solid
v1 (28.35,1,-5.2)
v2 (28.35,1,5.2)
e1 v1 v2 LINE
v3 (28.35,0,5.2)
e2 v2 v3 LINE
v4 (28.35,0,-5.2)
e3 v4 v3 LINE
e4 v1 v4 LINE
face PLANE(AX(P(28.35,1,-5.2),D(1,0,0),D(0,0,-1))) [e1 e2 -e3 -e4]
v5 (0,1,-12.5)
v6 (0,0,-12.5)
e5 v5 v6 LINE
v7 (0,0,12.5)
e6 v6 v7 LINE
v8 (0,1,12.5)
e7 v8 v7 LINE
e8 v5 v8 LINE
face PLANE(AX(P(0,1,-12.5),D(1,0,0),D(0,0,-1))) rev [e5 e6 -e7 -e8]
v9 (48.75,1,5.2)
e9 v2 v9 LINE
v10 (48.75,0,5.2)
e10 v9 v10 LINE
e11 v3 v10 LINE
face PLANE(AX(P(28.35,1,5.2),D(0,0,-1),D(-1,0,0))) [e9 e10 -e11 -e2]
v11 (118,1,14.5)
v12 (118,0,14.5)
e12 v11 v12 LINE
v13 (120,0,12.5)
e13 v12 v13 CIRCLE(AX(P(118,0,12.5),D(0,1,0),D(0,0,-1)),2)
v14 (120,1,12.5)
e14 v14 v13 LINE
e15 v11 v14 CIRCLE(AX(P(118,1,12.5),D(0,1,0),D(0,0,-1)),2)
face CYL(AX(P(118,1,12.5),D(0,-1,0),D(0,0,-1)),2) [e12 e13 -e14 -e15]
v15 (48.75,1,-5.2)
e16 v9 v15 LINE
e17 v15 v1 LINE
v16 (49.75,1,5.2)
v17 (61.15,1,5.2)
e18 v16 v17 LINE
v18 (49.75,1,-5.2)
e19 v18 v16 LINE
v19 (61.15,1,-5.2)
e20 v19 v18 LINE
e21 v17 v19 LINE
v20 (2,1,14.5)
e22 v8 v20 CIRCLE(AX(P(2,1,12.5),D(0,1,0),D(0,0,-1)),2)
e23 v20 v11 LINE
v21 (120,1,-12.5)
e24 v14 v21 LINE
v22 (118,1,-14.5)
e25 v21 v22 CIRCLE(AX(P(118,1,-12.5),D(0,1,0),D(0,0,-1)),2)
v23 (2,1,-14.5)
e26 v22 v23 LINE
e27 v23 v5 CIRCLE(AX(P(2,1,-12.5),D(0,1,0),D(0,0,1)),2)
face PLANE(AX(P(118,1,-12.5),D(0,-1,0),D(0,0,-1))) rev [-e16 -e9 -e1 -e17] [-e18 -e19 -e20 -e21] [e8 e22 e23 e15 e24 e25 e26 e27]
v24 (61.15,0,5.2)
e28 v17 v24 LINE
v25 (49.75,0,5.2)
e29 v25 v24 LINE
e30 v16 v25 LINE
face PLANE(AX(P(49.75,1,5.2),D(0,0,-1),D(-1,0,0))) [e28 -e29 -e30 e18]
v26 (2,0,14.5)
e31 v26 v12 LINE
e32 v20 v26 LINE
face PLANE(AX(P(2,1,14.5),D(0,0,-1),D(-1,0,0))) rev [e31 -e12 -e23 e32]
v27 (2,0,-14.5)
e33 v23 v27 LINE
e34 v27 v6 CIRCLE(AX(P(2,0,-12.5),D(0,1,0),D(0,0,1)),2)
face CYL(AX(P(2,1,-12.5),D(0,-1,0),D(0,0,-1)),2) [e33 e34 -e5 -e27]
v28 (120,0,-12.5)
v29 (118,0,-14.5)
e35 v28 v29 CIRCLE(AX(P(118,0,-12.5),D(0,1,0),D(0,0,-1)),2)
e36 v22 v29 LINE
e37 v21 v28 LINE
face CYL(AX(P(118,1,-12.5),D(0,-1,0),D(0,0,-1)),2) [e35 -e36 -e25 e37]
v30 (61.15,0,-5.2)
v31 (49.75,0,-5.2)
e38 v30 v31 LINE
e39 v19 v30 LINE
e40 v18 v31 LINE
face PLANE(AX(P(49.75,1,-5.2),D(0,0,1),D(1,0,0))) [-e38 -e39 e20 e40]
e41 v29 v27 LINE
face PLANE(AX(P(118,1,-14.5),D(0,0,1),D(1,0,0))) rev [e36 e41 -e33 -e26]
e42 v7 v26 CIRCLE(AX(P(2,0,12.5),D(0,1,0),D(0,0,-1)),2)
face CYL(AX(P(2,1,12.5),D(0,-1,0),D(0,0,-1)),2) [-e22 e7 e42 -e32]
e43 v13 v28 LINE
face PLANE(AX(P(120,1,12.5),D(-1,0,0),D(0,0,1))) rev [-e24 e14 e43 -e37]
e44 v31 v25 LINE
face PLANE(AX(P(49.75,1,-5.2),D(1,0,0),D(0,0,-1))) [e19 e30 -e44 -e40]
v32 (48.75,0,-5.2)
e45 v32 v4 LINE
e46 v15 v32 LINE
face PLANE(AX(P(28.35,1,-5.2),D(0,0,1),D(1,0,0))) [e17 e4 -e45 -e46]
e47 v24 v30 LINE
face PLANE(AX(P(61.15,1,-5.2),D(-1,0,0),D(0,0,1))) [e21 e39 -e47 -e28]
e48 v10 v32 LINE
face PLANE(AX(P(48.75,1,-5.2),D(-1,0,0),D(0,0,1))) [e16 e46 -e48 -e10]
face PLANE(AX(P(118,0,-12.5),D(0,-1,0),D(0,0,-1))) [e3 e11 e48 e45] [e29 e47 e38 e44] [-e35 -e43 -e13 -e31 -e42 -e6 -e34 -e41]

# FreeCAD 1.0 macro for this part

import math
import FreeCAD as App
import Part
import Sketcher

V = App.Vector
Q = App.Units.Quantity


def add_polygon(sketch, points):
    """Adds a closed chain of lines whose ends are joined by coincident constraints."""
    first, n = sketch.GeometryCount, len(points)
    for a, b in zip(points, points[1:] + points[:1]):
        sketch.addGeometry(Part.LineSegment(App.Vector(*a, 0), App.Vector(*b, 0)), False)
    for i in range(n):
        sketch.addConstraint(Sketcher.Constraint("Coincident", first + i, 2, first + (i + 1) % n, 1))

doc = App.newDocument("Part")
body = doc.addObject("PartDesign::Body", "Body")

sketch1 = body.newObject("Sketcher::SketchObject", "Sketch")
sketch1.AttachmentSupport = (doc.getObject("XZ_Plane"), [""])
sketch1.MapMode = "FlatFace"
sketch1.addGeometry(Part.LineSegment(V(0, -12.5, 0), V(0, 12.5, 0)), False)
sketch1.addGeometry(Part.ArcOfCircle(Part.Circle(V(2, 12.5, 0), V(0, 0, 1), 2), math.radians(90), math.radians(180)), False)
sketch1.addGeometry(Part.LineSegment(V(2, 14.5, 0), V(118, 14.5, 0)), False)
sketch1.addGeometry(Part.ArcOfCircle(Part.Circle(V(118, 12.5, 0), V(0, 0, 1), 2), math.radians(0), math.radians(90)), False)
sketch1.addGeometry(Part.LineSegment(V(120, 12.5, 0), V(120, -12.5, 0)), False)
sketch1.addGeometry(Part.ArcOfCircle(Part.Circle(V(118, -12.5, 0), V(0, 0, 1), 2), math.radians(-90), math.radians(0)), False)
sketch1.addGeometry(Part.LineSegment(V(118, -14.5, 0), V(2, -14.5, 0)), False)
sketch1.addGeometry(Part.ArcOfCircle(Part.Circle(V(2, -12.5, 0), V(0, 0, 1), 2), math.radians(-180), math.radians(-90)), False)
add_polygon(sketch1, [(48.75, 5.2), (28.35, 5.2), (28.35, -5.2), (48.75, -5.2)])
add_polygon(sketch1, [(61.15, 5.2), (49.75, 5.2), (49.75, -5.2), (61.15, -5.2)])
sketch1.addConstraint(Sketcher.Constraint("Tangent", 0, 2, 1, 2))
sketch1.addConstraint(Sketcher.Constraint("Tangent", 1, 1, 2, 1))
sketch1.addConstraint(Sketcher.Constraint("Tangent", 2, 2, 3, 2))
sketch1.addConstraint(Sketcher.Constraint("Tangent", 3, 1, 4, 1))
sketch1.addConstraint(Sketcher.Constraint("Tangent", 4, 2, 5, 2))
sketch1.addConstraint(Sketcher.Constraint("Tangent", 5, 1, 6, 1))
sketch1.addConstraint(Sketcher.Constraint("Tangent", 6, 2, 7, 2))
sketch1.addConstraint(Sketcher.Constraint("Tangent", 7, 1, 0, 1))
sketch1.addConstraint(Sketcher.Constraint("Vertical", 0))
sketch1.addConstraint(Sketcher.Constraint("Horizontal", 2))
sketch1.addConstraint(Sketcher.Constraint("Vertical", 4))
sketch1.addConstraint(Sketcher.Constraint("Horizontal", 6))
sketch1.addConstraint(Sketcher.Constraint("Horizontal", 8))
sketch1.addConstraint(Sketcher.Constraint("Vertical", 9))
sketch1.addConstraint(Sketcher.Constraint("Horizontal", 10))
sketch1.addConstraint(Sketcher.Constraint("Vertical", 11))
sketch1.addConstraint(Sketcher.Constraint("Horizontal", 12))
sketch1.addConstraint(Sketcher.Constraint("Vertical", 13))
sketch1.addConstraint(Sketcher.Constraint("Horizontal", 14))
sketch1.addConstraint(Sketcher.Constraint("Vertical", 15))
sketch1.addConstraint(Sketcher.Constraint("Equal", 1, 3))
sketch1.addConstraint(Sketcher.Constraint("Equal", 3, 5))
sketch1.addConstraint(Sketcher.Constraint("Equal", 5, 7))
sketch1.addConstraint(Sketcher.Constraint("Symmetric", 0, 2, 7, 1, -1, 1))
sketch1.addConstraint(Sketcher.Constraint("Horizontal", 11, 2, 12, 2))
sketch1.addConstraint(Sketcher.Constraint("Horizontal", 10, 2, 13, 2))
sketch1.addConstraint(Sketcher.Constraint("Radius", 1, Q("2 mm")))
sketch1.addConstraint(Sketcher.Constraint("DistanceX", 2, 1, 2, 2, Q("116 mm")))
sketch1.addConstraint(Sketcher.Constraint("DistanceY", 0, 1, 0, 2, Q("25 mm")))
sketch1.addConstraint(Sketcher.Constraint("DistanceX", 8, 2, 8, 1, Q("20.4 mm")))
sketch1.addConstraint(Sketcher.Constraint("DistanceX", 12, 2, 12, 1, Q("11.4 mm")))
sketch1.addConstraint(Sketcher.Constraint("DistanceY", 9, 2, 9, 1, Q("10.4 mm")))
sketch1.addConstraint(Sketcher.Constraint("DistanceX", 11, 2, 12, 2, Q("1 mm")))
sketch1.addConstraint(Sketcher.Constraint("DistanceY", -1, 1, 8, 2, Q("5.2 mm")))
sketch1.addConstraint(Sketcher.Constraint("DistanceX", -1, 1, 8, 2, Q("28.35 mm")))
pad1 = body.newObject("PartDesign::Pad", "Pad")
pad1.Profile = sketch1
pad1.Length = 1
pad1.Reversed = True

doc.recompute()
